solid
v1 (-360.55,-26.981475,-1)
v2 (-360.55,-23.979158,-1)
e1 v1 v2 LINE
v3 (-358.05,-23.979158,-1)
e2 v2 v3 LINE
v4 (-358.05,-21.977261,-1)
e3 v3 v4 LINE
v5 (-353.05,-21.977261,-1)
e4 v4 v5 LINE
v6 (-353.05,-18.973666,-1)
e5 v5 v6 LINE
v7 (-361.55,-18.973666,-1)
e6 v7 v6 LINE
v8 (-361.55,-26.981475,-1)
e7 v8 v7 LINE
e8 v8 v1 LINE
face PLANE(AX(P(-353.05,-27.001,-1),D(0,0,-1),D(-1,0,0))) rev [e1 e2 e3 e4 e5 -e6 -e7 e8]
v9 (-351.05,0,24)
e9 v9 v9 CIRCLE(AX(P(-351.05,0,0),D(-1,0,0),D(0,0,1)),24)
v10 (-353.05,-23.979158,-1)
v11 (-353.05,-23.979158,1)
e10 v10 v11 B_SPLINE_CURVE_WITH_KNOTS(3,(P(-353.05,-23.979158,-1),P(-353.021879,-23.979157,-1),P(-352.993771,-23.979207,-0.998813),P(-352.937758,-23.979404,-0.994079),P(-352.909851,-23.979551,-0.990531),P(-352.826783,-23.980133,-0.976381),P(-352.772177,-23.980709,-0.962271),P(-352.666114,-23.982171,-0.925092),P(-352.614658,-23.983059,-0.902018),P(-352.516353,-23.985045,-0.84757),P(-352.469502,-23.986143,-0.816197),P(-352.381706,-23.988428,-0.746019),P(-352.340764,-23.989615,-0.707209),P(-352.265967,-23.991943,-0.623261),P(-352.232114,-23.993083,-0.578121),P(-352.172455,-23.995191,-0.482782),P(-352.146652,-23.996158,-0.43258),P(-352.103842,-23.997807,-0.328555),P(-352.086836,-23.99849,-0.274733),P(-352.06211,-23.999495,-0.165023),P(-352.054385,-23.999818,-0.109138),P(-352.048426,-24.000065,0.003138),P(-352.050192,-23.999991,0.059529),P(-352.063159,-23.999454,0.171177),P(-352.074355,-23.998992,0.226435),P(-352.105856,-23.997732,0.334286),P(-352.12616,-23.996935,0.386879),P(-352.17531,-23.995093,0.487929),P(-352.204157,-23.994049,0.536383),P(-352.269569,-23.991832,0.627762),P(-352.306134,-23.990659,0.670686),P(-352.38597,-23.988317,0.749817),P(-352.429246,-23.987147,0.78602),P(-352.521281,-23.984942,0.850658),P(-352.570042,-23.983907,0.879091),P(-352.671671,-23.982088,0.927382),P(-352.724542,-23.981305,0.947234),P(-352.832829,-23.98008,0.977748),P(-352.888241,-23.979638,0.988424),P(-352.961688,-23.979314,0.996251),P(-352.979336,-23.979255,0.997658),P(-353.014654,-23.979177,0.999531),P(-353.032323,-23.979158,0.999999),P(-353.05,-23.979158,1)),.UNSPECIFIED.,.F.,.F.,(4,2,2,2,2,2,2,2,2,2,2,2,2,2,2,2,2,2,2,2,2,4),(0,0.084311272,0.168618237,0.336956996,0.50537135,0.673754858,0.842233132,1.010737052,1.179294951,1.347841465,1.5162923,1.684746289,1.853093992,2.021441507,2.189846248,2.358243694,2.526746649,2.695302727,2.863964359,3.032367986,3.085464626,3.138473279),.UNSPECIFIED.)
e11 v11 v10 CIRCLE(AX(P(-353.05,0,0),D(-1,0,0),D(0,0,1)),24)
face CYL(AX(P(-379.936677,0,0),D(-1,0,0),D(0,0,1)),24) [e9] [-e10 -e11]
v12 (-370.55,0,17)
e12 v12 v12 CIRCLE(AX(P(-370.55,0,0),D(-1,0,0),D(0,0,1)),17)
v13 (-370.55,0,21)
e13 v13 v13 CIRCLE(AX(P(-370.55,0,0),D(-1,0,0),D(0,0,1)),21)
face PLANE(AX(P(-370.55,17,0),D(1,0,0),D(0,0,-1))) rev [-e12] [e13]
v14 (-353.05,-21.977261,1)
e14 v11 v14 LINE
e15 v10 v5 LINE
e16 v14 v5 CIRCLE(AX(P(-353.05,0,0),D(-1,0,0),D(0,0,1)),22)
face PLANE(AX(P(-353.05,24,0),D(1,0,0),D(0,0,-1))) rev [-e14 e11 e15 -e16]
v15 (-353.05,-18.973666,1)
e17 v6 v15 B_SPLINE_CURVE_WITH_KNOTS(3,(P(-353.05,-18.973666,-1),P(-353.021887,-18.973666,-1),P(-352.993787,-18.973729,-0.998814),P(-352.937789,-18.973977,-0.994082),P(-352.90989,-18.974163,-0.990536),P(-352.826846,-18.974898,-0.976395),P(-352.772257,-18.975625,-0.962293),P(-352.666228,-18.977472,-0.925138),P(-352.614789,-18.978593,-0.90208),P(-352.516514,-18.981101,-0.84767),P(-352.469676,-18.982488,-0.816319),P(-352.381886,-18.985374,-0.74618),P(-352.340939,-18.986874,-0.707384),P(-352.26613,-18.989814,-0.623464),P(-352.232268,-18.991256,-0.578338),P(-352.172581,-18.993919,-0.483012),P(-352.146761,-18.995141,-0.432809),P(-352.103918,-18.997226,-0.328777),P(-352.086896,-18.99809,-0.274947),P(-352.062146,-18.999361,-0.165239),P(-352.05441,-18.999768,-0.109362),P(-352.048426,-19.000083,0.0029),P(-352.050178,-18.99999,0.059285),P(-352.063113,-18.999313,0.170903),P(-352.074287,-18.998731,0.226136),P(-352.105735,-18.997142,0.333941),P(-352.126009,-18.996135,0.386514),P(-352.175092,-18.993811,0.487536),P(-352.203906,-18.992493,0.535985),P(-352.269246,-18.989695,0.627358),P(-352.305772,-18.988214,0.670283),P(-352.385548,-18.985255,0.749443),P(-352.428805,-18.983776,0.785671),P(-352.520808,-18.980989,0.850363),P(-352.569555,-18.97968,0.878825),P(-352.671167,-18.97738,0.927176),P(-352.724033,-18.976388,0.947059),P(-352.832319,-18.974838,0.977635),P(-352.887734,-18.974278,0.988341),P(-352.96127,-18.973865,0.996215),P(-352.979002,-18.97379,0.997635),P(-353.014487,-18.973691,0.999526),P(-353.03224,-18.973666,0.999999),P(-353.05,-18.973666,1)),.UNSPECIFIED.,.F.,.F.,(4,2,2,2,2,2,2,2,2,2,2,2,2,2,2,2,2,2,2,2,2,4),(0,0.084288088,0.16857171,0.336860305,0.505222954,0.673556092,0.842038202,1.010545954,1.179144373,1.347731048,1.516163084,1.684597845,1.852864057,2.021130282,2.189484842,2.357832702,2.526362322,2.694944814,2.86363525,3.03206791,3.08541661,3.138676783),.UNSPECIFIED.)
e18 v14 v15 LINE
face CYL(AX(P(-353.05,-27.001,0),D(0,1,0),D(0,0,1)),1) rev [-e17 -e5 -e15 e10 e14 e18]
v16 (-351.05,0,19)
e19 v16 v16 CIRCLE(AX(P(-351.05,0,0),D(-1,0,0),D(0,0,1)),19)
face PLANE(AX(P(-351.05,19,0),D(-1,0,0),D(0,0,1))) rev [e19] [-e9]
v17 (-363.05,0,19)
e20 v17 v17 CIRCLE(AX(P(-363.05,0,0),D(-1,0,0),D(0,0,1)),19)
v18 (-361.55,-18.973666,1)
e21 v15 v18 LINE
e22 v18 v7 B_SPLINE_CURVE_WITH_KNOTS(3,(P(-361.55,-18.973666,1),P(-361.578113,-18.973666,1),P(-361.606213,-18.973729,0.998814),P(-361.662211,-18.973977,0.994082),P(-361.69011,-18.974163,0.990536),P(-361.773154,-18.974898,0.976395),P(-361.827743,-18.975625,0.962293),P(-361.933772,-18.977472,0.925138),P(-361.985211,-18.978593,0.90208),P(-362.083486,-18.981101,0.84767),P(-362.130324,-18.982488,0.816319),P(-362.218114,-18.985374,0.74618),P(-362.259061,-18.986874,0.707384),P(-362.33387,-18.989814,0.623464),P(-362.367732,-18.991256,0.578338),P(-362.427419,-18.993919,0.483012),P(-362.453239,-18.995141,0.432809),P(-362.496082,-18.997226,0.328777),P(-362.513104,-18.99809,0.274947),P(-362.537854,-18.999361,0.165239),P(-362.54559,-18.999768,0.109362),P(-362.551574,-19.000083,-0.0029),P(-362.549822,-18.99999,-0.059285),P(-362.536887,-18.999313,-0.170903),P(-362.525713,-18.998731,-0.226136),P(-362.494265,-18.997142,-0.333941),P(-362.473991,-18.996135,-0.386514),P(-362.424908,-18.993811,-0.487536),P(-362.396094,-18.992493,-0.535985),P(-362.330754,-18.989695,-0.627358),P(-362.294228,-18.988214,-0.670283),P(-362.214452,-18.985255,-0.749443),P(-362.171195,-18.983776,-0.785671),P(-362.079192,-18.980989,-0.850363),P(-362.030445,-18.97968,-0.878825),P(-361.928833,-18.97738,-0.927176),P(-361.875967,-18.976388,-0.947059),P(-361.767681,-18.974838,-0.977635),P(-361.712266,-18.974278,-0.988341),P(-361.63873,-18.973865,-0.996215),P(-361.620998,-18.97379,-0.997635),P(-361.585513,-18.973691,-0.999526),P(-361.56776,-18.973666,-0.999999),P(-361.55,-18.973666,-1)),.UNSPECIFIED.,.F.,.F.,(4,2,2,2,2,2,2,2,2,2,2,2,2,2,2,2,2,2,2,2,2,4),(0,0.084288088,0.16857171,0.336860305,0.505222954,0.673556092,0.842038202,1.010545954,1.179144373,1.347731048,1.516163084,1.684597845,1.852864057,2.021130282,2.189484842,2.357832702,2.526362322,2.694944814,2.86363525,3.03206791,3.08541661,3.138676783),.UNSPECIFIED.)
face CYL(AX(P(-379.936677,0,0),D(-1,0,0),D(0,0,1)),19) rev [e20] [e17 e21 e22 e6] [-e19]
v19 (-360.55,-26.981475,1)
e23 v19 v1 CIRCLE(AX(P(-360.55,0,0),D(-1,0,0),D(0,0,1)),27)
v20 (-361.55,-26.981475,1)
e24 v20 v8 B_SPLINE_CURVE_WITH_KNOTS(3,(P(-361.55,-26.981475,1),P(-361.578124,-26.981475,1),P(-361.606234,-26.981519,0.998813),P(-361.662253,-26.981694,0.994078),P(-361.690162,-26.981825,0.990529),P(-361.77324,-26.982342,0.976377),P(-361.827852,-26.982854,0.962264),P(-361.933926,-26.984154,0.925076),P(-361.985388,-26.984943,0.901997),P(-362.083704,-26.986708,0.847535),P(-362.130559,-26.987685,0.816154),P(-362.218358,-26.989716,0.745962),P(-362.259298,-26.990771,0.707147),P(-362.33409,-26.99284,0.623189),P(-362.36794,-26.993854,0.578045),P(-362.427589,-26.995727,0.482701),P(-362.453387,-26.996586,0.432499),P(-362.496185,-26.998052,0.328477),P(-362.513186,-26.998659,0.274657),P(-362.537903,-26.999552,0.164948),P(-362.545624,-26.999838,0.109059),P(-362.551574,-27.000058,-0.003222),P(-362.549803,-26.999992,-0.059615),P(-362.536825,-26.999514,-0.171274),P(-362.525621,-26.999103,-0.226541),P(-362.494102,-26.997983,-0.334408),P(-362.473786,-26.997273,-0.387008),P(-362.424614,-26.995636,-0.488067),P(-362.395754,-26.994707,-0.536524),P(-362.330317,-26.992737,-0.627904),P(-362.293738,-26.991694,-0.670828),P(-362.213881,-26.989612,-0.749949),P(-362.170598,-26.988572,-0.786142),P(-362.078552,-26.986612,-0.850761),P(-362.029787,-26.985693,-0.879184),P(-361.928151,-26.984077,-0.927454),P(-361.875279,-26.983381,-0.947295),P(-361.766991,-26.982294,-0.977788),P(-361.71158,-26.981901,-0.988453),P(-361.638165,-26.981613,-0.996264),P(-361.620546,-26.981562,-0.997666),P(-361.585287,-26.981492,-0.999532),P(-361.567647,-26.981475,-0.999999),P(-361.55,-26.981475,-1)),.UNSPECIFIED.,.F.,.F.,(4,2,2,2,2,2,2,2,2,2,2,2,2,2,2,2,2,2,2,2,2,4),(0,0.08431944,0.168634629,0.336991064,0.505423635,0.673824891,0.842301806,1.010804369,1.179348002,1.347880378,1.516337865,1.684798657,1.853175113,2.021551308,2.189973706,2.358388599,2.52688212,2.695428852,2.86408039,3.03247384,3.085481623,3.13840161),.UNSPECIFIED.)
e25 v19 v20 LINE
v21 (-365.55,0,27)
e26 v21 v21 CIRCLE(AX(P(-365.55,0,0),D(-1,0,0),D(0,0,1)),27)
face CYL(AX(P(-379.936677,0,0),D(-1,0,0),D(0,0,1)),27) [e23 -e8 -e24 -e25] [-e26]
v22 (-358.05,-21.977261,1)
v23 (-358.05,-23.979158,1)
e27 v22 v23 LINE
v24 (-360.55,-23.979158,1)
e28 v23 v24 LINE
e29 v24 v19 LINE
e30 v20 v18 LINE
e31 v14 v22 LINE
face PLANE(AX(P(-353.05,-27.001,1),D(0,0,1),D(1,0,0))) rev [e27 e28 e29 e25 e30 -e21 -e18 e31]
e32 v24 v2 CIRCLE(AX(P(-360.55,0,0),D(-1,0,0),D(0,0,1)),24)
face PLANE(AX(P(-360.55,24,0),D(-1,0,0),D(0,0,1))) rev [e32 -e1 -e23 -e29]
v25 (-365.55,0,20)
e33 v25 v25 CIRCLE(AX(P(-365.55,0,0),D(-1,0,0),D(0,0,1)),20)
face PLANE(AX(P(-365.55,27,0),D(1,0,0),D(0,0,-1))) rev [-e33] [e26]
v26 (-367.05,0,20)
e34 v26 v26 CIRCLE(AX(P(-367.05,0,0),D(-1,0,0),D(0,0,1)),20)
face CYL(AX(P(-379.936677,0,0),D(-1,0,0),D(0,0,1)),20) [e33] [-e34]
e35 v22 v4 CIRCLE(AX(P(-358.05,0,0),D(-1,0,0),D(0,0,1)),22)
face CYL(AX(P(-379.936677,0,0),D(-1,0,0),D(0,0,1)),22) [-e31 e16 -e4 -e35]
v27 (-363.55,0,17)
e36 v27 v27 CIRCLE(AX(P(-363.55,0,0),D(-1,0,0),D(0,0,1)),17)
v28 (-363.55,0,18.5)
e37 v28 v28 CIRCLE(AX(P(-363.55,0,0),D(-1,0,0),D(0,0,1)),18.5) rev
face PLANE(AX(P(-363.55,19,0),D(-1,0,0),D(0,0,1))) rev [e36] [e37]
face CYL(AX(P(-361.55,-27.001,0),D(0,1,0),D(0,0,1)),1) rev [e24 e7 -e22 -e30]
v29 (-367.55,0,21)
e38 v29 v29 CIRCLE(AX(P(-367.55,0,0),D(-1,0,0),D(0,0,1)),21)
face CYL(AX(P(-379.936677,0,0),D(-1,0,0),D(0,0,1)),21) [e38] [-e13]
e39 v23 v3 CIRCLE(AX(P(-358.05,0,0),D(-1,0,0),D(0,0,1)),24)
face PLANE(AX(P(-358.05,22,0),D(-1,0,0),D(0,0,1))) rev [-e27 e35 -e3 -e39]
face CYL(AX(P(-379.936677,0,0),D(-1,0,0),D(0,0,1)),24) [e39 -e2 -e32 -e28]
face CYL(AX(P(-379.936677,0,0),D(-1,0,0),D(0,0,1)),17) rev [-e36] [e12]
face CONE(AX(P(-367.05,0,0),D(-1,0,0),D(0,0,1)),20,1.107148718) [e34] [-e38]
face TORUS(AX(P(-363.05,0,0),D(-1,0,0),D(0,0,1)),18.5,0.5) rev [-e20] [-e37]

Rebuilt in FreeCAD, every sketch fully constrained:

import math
import FreeCAD as App
import Part
import Sketcher
Q = App.Units.Quantity


def edges_at(feature, points):
    """Names of the edges that pass closest to the given points."""
    edges = feature.Shape.Edges
    near = lambda p: min(range(len(edges)), key=lambda i: edges[i].distToShape(Part.Vertex(*p))[0])
    return sorted({f"Edge{near(p) + 1}" for p in points})

doc = App.newDocument("Part")
body = doc.addObject("PartDesign::Body", "Body")

sketch1 = body.newObject("Sketcher::SketchObject", "Sketch")
sketch1.AttachmentSupport = (doc.getObject("XY_Plane"), [""])
sketch1.MapMode = "FlatFace"
sketch1.addGeometry([
    Part.LineSegment(App.Vector(-351.1, 24, 0), App.Vector(-353.1, 24, 0)),
    Part.LineSegment(App.Vector(-353.1, 24, 0), App.Vector(-353.1, 22, 0)),
    Part.LineSegment(App.Vector(-353.1, 22, 0), App.Vector(-358.1, 22, 0)),
    Part.LineSegment(App.Vector(-358.1, 22, 0), App.Vector(-358.1, 24, 0)),
    Part.LineSegment(App.Vector(-358.1, 24, 0), App.Vector(-360.6, 24, 0)),
    Part.LineSegment(App.Vector(-360.6, 24, 0), App.Vector(-360.6, 27, 0)),
    Part.LineSegment(App.Vector(-360.6, 27, 0), App.Vector(-365.6, 27, 0)),
    Part.LineSegment(App.Vector(-365.6, 27, 0), App.Vector(-365.6, 20, 0)),
    Part.LineSegment(App.Vector(-365.6, 20, 0), App.Vector(-367.1, 20, 0)),
    Part.LineSegment(App.Vector(-367.1, 20, 0), App.Vector(-367.6, 21, 0)),
    Part.LineSegment(App.Vector(-367.6, 21, 0), App.Vector(-370.6, 21, 0)),
    Part.LineSegment(App.Vector(-370.6, 21, 0), App.Vector(-370.6, 17, 0)),
    Part.LineSegment(App.Vector(-370.6, 17, 0), App.Vector(-363.6, 17, 0)),
    Part.LineSegment(App.Vector(-363.6, 17, 0), App.Vector(-363.6, 19, 0)),
    Part.LineSegment(App.Vector(-363.6, 19, 0), App.Vector(-351.1, 19, 0)),
    Part.LineSegment(App.Vector(-351.1, 19, 0), App.Vector(-351.1, 24, 0)),
], False)
sketch1.addConstraint([
    Sketcher.Constraint("Coincident", 0, 2, 1, 1),
    Sketcher.Constraint("Coincident", 1, 2, 2, 1),
    Sketcher.Constraint("Coincident", 2, 2, 3, 1),
    Sketcher.Constraint("Coincident", 3, 2, 4, 1),
    Sketcher.Constraint("Coincident", 4, 2, 5, 1),
    Sketcher.Constraint("Coincident", 5, 2, 6, 1),
    Sketcher.Constraint("Coincident", 6, 2, 7, 1),
    Sketcher.Constraint("Coincident", 7, 2, 8, 1),
    Sketcher.Constraint("Coincident", 8, 2, 9, 1),
    Sketcher.Constraint("Coincident", 9, 2, 10, 1),
    Sketcher.Constraint("Coincident", 10, 2, 11, 1),
    Sketcher.Constraint("Coincident", 11, 2, 12, 1),
    Sketcher.Constraint("Coincident", 12, 2, 13, 1),
    Sketcher.Constraint("Coincident", 13, 2, 14, 1),
    Sketcher.Constraint("Coincident", 14, 2, 15, 1),
    Sketcher.Constraint("Coincident", 15, 2, 0, 1),
    Sketcher.Constraint("Horizontal", 0),
    Sketcher.Constraint("Vertical", 1),
    Sketcher.Constraint("Horizontal", 2),
    Sketcher.Constraint("Vertical", 3),
    Sketcher.Constraint("Horizontal", 4),
    Sketcher.Constraint("Vertical", 5),
    Sketcher.Constraint("Horizontal", 6),
    Sketcher.Constraint("Vertical", 7),
    Sketcher.Constraint("Horizontal", 8),
    Sketcher.Constraint("Horizontal", 10),
    Sketcher.Constraint("Vertical", 11),
    Sketcher.Constraint("Horizontal", 12),
    Sketcher.Constraint("Vertical", 13),
    Sketcher.Constraint("Horizontal", 14),
    Sketcher.Constraint("Vertical", 15),
    Sketcher.Constraint("Horizontal", 0, 2, 3, 2),
    Sketcher.Constraint("Equal", 2, 6),
    Sketcher.Constraint("Equal", 0, 1),
    Sketcher.Constraint("Equal", 10, 5),
    Sketcher.Constraint("Equal", 12, 7),
    Sketcher.Constraint("Equal", 3, 13),
    Sketcher.Constraint("Equal", 6, 15),
    Sketcher.Constraint("DistanceX", 0, 2, 0, 1, Q("2 mm")),
    Sketcher.Constraint("DistanceX", 2, 2, 2, 1, Q("5 mm")),
    Sketcher.Constraint("DistanceX", 10, 2, 10, 1, Q("3 mm")),
    Sketcher.Constraint("DistanceX", 12, 1, 12, 2, Q("7 mm")),
    Sketcher.Constraint("DistanceY", 11, 2, 11, 1, Q("4 mm")),
    Sketcher.Constraint("DistanceX", 4, 2, 4, 1, Q("2.5 mm")),
    Sketcher.Constraint("DistanceX", 8, 2, 8, 1, Q("1.5 mm")),
    Sketcher.Constraint("DistanceX", 14, 1, 14, 2, Q("12.5 mm")),
    Sketcher.Constraint("DistanceY", -1, 1, 0, 2, Q("24 mm")),
    Sketcher.Constraint("DistanceX", 0, 2, -1, 1, Q("353.05 mm")),
])
revolution = body.newObject("PartDesign::Revolution", "Revolution")
revolution.Profile = sketch1
revolution.ReferenceAxis = (sketch1, ["H_Axis"])
revolution.Angle = 360
doc.recompute()

fillet = body.newObject("PartDesign::Fillet", "Fillet")
fillet.Base = (revolution, edges_at(revolution, [(-363.55, -19, 0)]))
fillet.Radius = 0.5

sketch2 = body.newObject("Sketcher::SketchObject", "Sketch001")
sketch2.AttachmentSupport = (doc.getObject("XZ_Plane"), [""])
sketch2.MapMode = "FlatFace"
sketch2.AttachmentOffset = App.Placement(App.Vector(0, 0, 27), App.Rotation())
sketch2.addGeometry([
    Part.LineSegment(App.Vector(-361.6, 1, 0), App.Vector(-353.1, 1, 0)),
    Part.ArcOfCircle(Part.Circle(App.Vector(-353.1, 0, 0), App.Vector(0, 0, 1), 1), math.radians(-90), math.radians(90)),
    Part.LineSegment(App.Vector(-353.1, -1, 0), App.Vector(-361.6, -1, 0)),
    Part.ArcOfCircle(Part.Circle(App.Vector(-361.6, 0, 0), App.Vector(0, 0, 1), 1), math.radians(90), math.radians(270)),
], False)
sketch2.addConstraint([
    Sketcher.Constraint("Tangent", 0, 2, 1, 2),
    Sketcher.Constraint("Tangent", 1, 1, 2, 1),
    Sketcher.Constraint("Tangent", 2, 2, 3, 2),
    Sketcher.Constraint("Tangent", 3, 1, 0, 1),
    Sketcher.Constraint("Horizontal", 0),
    Sketcher.Constraint("Horizontal", 2),
    Sketcher.Constraint("PointOnObject", 1, 3, -1),
    Sketcher.Constraint("Radius", 1, Q("1 mm")),
    Sketcher.Constraint("DistanceX", 0, 1, 0, 2, Q("8.5 mm")),
    Sketcher.Constraint("DistanceX", 1, 3, -1, 1, Q("353.05 mm")),
])
pocket1 = body.newObject("PartDesign::Pocket", "Pocket")
pocket1.Profile = sketch2
pocket1.Length = 8.026334

doc.recompute()
